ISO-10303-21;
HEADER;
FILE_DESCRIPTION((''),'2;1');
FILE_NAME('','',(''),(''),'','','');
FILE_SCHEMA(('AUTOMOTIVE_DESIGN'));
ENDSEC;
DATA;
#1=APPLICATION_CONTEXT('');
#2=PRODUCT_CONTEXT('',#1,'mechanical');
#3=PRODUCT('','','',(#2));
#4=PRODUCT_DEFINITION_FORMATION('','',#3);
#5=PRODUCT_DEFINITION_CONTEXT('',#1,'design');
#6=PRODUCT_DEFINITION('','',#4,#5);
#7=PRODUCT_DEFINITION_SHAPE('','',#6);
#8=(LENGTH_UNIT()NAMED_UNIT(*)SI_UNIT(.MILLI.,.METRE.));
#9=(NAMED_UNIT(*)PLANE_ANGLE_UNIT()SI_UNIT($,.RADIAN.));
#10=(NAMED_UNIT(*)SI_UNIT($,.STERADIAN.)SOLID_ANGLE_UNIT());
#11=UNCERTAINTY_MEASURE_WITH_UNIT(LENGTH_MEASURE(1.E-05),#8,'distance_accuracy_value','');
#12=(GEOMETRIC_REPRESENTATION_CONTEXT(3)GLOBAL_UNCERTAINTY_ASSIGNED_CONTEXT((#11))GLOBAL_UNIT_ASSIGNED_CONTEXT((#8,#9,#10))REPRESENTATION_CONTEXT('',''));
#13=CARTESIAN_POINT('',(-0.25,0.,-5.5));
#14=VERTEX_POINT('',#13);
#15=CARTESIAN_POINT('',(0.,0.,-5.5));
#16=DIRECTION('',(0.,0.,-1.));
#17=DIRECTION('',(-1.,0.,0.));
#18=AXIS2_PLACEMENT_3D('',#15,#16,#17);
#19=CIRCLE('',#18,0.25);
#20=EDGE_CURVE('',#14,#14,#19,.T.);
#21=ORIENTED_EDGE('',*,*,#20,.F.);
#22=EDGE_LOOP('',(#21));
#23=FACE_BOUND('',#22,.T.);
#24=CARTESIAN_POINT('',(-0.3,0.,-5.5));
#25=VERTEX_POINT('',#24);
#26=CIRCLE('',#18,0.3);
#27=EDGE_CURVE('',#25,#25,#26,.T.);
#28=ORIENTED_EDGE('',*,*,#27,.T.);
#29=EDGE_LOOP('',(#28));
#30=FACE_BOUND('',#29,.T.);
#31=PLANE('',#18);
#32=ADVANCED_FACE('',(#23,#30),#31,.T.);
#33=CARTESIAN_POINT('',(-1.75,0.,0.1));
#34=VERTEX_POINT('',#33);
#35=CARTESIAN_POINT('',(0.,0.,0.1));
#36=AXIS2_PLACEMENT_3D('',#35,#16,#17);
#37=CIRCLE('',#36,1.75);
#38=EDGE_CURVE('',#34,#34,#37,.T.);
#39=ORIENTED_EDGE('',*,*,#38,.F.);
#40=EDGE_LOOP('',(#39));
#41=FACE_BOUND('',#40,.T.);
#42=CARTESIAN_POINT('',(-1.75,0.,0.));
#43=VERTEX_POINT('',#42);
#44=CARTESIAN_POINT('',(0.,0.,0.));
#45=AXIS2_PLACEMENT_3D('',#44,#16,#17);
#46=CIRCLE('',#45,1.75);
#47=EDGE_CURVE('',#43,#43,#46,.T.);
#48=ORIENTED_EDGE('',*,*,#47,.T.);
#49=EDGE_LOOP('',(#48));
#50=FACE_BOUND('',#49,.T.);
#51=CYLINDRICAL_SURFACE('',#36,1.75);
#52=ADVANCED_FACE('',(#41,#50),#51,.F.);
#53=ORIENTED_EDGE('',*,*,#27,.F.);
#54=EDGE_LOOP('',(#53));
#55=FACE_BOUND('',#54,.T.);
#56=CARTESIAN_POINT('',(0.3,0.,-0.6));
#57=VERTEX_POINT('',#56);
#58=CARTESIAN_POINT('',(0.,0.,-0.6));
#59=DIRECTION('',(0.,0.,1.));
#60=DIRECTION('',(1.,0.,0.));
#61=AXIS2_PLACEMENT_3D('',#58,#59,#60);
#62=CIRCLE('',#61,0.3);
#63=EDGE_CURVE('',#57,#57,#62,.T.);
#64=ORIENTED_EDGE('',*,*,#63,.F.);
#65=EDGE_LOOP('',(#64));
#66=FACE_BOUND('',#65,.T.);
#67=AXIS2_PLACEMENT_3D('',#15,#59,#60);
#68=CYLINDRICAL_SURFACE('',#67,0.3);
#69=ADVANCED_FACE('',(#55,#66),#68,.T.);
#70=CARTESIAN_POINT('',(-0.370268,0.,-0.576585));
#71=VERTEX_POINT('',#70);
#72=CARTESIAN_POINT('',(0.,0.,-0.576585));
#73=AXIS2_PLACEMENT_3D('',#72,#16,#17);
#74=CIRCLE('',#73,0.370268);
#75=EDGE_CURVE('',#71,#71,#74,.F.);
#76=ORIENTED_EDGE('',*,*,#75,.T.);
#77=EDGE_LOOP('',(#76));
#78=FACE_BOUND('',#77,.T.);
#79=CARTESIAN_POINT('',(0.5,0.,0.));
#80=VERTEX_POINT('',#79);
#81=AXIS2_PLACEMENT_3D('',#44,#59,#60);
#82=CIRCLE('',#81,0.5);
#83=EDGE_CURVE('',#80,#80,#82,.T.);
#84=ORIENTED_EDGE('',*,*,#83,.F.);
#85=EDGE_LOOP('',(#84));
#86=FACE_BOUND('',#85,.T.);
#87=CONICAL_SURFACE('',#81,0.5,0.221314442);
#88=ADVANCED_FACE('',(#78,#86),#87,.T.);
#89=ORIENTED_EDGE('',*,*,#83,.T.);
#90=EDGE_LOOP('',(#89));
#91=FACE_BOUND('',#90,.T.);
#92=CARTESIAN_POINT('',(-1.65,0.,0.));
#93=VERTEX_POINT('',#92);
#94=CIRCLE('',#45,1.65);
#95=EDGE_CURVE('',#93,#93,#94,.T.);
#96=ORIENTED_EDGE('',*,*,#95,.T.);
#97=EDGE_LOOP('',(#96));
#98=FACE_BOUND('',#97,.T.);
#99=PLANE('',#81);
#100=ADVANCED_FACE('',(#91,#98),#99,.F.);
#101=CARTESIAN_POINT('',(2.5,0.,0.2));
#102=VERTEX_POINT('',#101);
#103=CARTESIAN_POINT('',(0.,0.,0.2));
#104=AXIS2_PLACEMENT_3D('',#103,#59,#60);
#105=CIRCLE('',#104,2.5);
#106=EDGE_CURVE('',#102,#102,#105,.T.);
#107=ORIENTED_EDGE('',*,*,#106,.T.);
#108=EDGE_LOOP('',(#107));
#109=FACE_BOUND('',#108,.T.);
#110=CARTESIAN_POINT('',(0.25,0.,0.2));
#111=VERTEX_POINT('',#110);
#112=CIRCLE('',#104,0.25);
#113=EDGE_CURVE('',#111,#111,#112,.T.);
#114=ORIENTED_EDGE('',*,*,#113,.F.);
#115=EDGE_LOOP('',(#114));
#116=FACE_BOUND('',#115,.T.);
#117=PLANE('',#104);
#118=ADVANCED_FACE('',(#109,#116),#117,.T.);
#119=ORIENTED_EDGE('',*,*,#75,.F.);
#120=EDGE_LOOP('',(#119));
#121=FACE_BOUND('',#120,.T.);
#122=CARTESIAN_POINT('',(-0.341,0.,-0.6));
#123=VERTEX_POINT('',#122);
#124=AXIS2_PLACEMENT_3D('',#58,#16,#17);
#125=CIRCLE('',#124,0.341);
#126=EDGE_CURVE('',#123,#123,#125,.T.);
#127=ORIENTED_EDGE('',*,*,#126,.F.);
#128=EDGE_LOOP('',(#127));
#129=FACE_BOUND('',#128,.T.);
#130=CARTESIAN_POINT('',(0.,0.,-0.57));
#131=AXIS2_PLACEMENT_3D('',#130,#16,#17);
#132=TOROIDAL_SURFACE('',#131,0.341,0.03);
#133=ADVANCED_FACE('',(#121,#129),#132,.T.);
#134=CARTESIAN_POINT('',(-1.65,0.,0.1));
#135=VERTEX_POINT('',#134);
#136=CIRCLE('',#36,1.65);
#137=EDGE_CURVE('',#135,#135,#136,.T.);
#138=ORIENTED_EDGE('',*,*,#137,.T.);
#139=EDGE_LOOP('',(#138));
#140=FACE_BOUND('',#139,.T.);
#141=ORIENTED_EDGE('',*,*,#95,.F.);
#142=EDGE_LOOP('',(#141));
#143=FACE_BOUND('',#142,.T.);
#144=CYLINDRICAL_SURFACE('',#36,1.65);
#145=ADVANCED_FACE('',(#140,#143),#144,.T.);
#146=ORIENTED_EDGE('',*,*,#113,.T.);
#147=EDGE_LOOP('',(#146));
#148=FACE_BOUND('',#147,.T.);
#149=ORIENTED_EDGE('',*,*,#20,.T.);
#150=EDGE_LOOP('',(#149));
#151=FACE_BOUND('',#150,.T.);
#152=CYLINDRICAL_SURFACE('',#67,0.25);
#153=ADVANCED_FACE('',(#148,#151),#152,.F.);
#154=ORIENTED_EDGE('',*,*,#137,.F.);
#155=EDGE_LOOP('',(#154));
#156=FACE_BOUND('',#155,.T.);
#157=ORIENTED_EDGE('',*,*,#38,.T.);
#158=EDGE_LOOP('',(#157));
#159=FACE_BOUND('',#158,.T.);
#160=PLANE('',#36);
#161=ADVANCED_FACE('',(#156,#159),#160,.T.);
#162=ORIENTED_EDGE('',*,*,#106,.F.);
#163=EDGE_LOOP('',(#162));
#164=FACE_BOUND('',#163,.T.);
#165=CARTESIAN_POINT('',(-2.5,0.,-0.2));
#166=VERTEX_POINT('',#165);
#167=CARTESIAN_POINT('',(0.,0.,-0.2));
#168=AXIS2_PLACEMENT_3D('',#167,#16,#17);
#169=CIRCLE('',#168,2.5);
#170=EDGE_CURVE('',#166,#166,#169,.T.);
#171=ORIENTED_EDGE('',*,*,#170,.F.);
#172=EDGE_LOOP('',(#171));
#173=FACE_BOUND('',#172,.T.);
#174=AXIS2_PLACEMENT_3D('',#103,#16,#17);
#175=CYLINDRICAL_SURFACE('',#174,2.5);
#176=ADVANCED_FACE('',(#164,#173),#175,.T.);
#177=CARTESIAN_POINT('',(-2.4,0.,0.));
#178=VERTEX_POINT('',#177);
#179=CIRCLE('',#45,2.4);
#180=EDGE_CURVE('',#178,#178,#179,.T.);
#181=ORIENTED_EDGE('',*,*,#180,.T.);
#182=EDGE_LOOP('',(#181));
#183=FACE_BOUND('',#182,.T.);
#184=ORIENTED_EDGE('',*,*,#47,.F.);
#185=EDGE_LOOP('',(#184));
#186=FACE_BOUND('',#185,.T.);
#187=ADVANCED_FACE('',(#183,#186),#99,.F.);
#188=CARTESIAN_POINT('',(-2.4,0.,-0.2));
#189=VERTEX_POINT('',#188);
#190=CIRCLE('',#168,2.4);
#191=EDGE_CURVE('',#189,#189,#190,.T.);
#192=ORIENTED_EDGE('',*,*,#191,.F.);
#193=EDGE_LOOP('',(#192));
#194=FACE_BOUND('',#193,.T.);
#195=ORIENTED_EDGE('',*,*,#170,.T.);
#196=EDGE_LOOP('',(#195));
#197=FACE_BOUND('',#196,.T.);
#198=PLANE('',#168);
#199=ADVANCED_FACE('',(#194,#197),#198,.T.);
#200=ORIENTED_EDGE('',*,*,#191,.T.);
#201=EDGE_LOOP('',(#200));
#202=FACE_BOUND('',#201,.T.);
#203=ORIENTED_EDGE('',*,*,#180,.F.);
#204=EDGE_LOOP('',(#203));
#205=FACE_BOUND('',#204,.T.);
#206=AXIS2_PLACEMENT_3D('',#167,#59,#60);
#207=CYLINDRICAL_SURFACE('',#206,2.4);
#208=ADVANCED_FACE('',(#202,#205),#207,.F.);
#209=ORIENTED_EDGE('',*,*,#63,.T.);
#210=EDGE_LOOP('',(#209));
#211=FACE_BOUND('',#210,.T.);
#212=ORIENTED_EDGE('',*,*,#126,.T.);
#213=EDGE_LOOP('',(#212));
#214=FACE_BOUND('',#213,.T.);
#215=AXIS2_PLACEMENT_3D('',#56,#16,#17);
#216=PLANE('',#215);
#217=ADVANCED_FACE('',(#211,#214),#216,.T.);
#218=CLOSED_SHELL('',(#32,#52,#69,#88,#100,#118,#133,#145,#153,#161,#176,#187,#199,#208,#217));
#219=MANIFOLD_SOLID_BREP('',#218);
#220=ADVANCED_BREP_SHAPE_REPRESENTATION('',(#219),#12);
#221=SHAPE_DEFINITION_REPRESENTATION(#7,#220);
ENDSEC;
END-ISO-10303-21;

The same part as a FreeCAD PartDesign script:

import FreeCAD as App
import Part
import Sketcher


def edges_at(feature, points):
    """Names of the edges that pass closest to the given points."""
    edges = feature.Shape.Edges
    near = lambda p: min(range(len(edges)), key=lambda i: edges[i].distToShape(Part.Vertex(*p))[0])
    return sorted({f"Edge{near(p) + 1}" for p in points})

doc = App.newDocument("Part")
body = doc.addObject("PartDesign::Body", "Body")

sketch1 = body.newObject("Sketcher::SketchObject", "Sketch")
sketch1.AttachmentSupport = (doc.getObject("XY_Plane"), [""])
sketch1.MapMode = "FlatFace"
sketch1.addGeometry(Part.Circle(App.Vector(0, 0, 0), App.Vector(0, 0, 1), 2.5), False)
sketch1.addConstraint(Sketcher.Constraint("Coincident", 0, 3, -1, 1))
sketch1.addConstraint(Sketcher.Constraint("Diameter", 0, 5.0))
pad1 = body.newObject("PartDesign::Pad", "Pad")
pad1.Profile = sketch1
pad1.Length = 0.2

sketch2 = body.newObject("Sketcher::SketchObject", "Sketch001")
sketch2.AttachmentSupport = (doc.getObject("XY_Plane"), [""])
sketch2.MapMode = "FlatFace"
sketch2.AttachmentOffset = App.Placement(App.Vector(0, 0, -0.2), App.Rotation())
sketch2.addGeometry(Part.Circle(App.Vector(0, 0, 0), App.Vector(0, 0, 1), 2.5), False)
sketch2.addGeometry(Part.Circle(App.Vector(0, 0, 0), App.Vector(0, 0, 1), 2.4), False)
sketch2.addConstraint(Sketcher.Constraint("Coincident", 0, 3, -1, 1))
sketch2.addConstraint(Sketcher.Constraint("Coincident", 1, 3, -1, 1))
sketch2.addConstraint(Sketcher.Constraint("Diameter", 0, 5.0))
sketch2.addConstraint(Sketcher.Constraint("Diameter", 1, 4.8))
pad2 = body.newObject("PartDesign::Pad", "Pad001")
pad2.Profile = sketch2
pad2.Length = 0.2

sketch3 = body.newObject("Sketcher::SketchObject", "Sketch002")
sketch3.AttachmentSupport = (doc.getObject("XY_Plane"), [""])
sketch3.MapMode = "FlatFace"
sketch3.addGeometry(Part.Circle(App.Vector(0, 0, 0), App.Vector(0, 0, 1), 1.8), False)
sketch3.addGeometry(Part.Circle(App.Vector(0, 0, 0), App.Vector(0, 0, 1), 1.6), False)
sketch3.addConstraint(Sketcher.Constraint("Coincident", 0, 3, -1, 1))
sketch3.addConstraint(Sketcher.Constraint("Coincident", 1, 3, -1, 1))
sketch3.addConstraint(Sketcher.Constraint("Diameter", 0, 3.5))
sketch3.addConstraint(Sketcher.Constraint("Diameter", 1, 3.3))
pocket1 = body.newObject("PartDesign::Pocket", "Pocket")
pocket1.Profile = sketch3
pocket1.Length = 0.1
pocket1.Reversed = True

sketch4 = body.newObject("Sketcher::SketchObject", "Sketch003")
sketch4.AttachmentSupport = (doc.getObject("XY_Plane"), [""])
sketch4.MapMode = "FlatFace"
sketch4.addGeometry(Part.Circle(App.Vector(0, 0, 0), App.Vector(0, 0, 1), 0.3), False)
sketch4.addGeometry(Part.Circle(App.Vector(0, 0, 0), App.Vector(0, 0, 1), 0.25), False)
sketch4.addConstraint(Sketcher.Constraint("Coincident", 0, 3, -1, 1))
sketch4.addConstraint(Sketcher.Constraint("Coincident", 1, 3, -1, 1))
sketch4.addConstraint(Sketcher.Constraint("Diameter", 0, 0.6))
sketch4.addConstraint(Sketcher.Constraint("Diameter", 1, 0.5))
pad3 = body.newObject("PartDesign::Pad", "Pad002")
pad3.Profile = sketch4
pad3.Length = 5.5
pad3.Reversed = True

sketch5 = body.newObject("Sketcher::SketchObject", "Sketch004")
sketch5.AttachmentSupport = (doc.getObject("XZ_Plane"), [""])
sketch5.MapMode = "FlatFace"
sketch5.addGeometry(Part.LineSegment(App.Vector(0.3, -0.6, 0), App.Vector(0.3, 0, 0)), False)
sketch5.addGeometry(Part.LineSegment(App.Vector(0.3, 0, 0), App.Vector(0.5, 0, 0)), False)
sketch5.addGeometry(Part.LineSegment(App.Vector(0.5, 0, 0), App.Vector(0.36, -0.6, 0)), False)
sketch5.addGeometry(Part.LineSegment(App.Vector(0.36, -0.6, 0), App.Vector(0.3, -0.6, 0)), False)
sketch5.addConstraint(Sketcher.Constraint("Coincident", 0, 2, 1, 1))
sketch5.addConstraint(Sketcher.Constraint("Coincident", 1, 2, 2, 1))
sketch5.addConstraint(Sketcher.Constraint("Coincident", 2, 2, 3, 1))
sketch5.addConstraint(Sketcher.Constraint("Coincident", 3, 2, 0, 1))
sketch5.addConstraint(Sketcher.Constraint("Vertical", 0))
sketch5.addConstraint(Sketcher.Constraint("Horizontal", 1))
sketch5.addConstraint(Sketcher.Constraint("Horizontal", 3))
sketch5.addConstraint(Sketcher.Constraint("PointOnObject", 0, 2, -1))
sketch5.addConstraint(Sketcher.Constraint("DistanceX", 1, 1, 1, 2, 0.2))
sketch5.addConstraint(Sketcher.Constraint("DistanceY", 0, 1, 0, 2, 0.6))
sketch5.addConstraint(Sketcher.Constraint("DistanceX", -1, 1, 0, 2, 0.3))
sketch5.addConstraint(Sketcher.Constraint("DistanceX", 3, 2, 3, 1, 0.065))
revolution = body.newObject("PartDesign::Revolution", "Revolution")
revolution.Profile = sketch5
revolution.ReferenceAxis = (sketch5, ["V_Axis"])
revolution.Angle = 360
doc.recompute()

fillet = body.newObject("PartDesign::Fillet", "Fillet")
fillet.Base = (revolution, edges_at(revolution, [(-0.365, 0, -0.6)]))
fillet.Radius = 0.03

sketch6 = body.newObject("Sketcher::SketchObject", "Sketch005")
sketch6.AttachmentSupport = (doc.getObject("XY_Plane"), [""])
sketch6.MapMode = "FlatFace"
sketch6.AttachmentOffset = App.Placement(App.Vector(0, 0, 5.5), App.Rotation())
sketch6.addGeometry(Part.Circle(App.Vector(0, 0, 0), App.Vector(0, 0, 1), 0.25), False)
sketch6.addConstraint(Sketcher.Constraint("Coincident", 0, 3, -1, 1))
sketch6.addConstraint(Sketcher.Constraint("Diameter", 0, 0.5))
pocket2 = body.newObject("PartDesign::Pocket", "Pocket001")
pocket2.Profile = sketch6
pocket2.Length = 5.5

doc.recompute()
